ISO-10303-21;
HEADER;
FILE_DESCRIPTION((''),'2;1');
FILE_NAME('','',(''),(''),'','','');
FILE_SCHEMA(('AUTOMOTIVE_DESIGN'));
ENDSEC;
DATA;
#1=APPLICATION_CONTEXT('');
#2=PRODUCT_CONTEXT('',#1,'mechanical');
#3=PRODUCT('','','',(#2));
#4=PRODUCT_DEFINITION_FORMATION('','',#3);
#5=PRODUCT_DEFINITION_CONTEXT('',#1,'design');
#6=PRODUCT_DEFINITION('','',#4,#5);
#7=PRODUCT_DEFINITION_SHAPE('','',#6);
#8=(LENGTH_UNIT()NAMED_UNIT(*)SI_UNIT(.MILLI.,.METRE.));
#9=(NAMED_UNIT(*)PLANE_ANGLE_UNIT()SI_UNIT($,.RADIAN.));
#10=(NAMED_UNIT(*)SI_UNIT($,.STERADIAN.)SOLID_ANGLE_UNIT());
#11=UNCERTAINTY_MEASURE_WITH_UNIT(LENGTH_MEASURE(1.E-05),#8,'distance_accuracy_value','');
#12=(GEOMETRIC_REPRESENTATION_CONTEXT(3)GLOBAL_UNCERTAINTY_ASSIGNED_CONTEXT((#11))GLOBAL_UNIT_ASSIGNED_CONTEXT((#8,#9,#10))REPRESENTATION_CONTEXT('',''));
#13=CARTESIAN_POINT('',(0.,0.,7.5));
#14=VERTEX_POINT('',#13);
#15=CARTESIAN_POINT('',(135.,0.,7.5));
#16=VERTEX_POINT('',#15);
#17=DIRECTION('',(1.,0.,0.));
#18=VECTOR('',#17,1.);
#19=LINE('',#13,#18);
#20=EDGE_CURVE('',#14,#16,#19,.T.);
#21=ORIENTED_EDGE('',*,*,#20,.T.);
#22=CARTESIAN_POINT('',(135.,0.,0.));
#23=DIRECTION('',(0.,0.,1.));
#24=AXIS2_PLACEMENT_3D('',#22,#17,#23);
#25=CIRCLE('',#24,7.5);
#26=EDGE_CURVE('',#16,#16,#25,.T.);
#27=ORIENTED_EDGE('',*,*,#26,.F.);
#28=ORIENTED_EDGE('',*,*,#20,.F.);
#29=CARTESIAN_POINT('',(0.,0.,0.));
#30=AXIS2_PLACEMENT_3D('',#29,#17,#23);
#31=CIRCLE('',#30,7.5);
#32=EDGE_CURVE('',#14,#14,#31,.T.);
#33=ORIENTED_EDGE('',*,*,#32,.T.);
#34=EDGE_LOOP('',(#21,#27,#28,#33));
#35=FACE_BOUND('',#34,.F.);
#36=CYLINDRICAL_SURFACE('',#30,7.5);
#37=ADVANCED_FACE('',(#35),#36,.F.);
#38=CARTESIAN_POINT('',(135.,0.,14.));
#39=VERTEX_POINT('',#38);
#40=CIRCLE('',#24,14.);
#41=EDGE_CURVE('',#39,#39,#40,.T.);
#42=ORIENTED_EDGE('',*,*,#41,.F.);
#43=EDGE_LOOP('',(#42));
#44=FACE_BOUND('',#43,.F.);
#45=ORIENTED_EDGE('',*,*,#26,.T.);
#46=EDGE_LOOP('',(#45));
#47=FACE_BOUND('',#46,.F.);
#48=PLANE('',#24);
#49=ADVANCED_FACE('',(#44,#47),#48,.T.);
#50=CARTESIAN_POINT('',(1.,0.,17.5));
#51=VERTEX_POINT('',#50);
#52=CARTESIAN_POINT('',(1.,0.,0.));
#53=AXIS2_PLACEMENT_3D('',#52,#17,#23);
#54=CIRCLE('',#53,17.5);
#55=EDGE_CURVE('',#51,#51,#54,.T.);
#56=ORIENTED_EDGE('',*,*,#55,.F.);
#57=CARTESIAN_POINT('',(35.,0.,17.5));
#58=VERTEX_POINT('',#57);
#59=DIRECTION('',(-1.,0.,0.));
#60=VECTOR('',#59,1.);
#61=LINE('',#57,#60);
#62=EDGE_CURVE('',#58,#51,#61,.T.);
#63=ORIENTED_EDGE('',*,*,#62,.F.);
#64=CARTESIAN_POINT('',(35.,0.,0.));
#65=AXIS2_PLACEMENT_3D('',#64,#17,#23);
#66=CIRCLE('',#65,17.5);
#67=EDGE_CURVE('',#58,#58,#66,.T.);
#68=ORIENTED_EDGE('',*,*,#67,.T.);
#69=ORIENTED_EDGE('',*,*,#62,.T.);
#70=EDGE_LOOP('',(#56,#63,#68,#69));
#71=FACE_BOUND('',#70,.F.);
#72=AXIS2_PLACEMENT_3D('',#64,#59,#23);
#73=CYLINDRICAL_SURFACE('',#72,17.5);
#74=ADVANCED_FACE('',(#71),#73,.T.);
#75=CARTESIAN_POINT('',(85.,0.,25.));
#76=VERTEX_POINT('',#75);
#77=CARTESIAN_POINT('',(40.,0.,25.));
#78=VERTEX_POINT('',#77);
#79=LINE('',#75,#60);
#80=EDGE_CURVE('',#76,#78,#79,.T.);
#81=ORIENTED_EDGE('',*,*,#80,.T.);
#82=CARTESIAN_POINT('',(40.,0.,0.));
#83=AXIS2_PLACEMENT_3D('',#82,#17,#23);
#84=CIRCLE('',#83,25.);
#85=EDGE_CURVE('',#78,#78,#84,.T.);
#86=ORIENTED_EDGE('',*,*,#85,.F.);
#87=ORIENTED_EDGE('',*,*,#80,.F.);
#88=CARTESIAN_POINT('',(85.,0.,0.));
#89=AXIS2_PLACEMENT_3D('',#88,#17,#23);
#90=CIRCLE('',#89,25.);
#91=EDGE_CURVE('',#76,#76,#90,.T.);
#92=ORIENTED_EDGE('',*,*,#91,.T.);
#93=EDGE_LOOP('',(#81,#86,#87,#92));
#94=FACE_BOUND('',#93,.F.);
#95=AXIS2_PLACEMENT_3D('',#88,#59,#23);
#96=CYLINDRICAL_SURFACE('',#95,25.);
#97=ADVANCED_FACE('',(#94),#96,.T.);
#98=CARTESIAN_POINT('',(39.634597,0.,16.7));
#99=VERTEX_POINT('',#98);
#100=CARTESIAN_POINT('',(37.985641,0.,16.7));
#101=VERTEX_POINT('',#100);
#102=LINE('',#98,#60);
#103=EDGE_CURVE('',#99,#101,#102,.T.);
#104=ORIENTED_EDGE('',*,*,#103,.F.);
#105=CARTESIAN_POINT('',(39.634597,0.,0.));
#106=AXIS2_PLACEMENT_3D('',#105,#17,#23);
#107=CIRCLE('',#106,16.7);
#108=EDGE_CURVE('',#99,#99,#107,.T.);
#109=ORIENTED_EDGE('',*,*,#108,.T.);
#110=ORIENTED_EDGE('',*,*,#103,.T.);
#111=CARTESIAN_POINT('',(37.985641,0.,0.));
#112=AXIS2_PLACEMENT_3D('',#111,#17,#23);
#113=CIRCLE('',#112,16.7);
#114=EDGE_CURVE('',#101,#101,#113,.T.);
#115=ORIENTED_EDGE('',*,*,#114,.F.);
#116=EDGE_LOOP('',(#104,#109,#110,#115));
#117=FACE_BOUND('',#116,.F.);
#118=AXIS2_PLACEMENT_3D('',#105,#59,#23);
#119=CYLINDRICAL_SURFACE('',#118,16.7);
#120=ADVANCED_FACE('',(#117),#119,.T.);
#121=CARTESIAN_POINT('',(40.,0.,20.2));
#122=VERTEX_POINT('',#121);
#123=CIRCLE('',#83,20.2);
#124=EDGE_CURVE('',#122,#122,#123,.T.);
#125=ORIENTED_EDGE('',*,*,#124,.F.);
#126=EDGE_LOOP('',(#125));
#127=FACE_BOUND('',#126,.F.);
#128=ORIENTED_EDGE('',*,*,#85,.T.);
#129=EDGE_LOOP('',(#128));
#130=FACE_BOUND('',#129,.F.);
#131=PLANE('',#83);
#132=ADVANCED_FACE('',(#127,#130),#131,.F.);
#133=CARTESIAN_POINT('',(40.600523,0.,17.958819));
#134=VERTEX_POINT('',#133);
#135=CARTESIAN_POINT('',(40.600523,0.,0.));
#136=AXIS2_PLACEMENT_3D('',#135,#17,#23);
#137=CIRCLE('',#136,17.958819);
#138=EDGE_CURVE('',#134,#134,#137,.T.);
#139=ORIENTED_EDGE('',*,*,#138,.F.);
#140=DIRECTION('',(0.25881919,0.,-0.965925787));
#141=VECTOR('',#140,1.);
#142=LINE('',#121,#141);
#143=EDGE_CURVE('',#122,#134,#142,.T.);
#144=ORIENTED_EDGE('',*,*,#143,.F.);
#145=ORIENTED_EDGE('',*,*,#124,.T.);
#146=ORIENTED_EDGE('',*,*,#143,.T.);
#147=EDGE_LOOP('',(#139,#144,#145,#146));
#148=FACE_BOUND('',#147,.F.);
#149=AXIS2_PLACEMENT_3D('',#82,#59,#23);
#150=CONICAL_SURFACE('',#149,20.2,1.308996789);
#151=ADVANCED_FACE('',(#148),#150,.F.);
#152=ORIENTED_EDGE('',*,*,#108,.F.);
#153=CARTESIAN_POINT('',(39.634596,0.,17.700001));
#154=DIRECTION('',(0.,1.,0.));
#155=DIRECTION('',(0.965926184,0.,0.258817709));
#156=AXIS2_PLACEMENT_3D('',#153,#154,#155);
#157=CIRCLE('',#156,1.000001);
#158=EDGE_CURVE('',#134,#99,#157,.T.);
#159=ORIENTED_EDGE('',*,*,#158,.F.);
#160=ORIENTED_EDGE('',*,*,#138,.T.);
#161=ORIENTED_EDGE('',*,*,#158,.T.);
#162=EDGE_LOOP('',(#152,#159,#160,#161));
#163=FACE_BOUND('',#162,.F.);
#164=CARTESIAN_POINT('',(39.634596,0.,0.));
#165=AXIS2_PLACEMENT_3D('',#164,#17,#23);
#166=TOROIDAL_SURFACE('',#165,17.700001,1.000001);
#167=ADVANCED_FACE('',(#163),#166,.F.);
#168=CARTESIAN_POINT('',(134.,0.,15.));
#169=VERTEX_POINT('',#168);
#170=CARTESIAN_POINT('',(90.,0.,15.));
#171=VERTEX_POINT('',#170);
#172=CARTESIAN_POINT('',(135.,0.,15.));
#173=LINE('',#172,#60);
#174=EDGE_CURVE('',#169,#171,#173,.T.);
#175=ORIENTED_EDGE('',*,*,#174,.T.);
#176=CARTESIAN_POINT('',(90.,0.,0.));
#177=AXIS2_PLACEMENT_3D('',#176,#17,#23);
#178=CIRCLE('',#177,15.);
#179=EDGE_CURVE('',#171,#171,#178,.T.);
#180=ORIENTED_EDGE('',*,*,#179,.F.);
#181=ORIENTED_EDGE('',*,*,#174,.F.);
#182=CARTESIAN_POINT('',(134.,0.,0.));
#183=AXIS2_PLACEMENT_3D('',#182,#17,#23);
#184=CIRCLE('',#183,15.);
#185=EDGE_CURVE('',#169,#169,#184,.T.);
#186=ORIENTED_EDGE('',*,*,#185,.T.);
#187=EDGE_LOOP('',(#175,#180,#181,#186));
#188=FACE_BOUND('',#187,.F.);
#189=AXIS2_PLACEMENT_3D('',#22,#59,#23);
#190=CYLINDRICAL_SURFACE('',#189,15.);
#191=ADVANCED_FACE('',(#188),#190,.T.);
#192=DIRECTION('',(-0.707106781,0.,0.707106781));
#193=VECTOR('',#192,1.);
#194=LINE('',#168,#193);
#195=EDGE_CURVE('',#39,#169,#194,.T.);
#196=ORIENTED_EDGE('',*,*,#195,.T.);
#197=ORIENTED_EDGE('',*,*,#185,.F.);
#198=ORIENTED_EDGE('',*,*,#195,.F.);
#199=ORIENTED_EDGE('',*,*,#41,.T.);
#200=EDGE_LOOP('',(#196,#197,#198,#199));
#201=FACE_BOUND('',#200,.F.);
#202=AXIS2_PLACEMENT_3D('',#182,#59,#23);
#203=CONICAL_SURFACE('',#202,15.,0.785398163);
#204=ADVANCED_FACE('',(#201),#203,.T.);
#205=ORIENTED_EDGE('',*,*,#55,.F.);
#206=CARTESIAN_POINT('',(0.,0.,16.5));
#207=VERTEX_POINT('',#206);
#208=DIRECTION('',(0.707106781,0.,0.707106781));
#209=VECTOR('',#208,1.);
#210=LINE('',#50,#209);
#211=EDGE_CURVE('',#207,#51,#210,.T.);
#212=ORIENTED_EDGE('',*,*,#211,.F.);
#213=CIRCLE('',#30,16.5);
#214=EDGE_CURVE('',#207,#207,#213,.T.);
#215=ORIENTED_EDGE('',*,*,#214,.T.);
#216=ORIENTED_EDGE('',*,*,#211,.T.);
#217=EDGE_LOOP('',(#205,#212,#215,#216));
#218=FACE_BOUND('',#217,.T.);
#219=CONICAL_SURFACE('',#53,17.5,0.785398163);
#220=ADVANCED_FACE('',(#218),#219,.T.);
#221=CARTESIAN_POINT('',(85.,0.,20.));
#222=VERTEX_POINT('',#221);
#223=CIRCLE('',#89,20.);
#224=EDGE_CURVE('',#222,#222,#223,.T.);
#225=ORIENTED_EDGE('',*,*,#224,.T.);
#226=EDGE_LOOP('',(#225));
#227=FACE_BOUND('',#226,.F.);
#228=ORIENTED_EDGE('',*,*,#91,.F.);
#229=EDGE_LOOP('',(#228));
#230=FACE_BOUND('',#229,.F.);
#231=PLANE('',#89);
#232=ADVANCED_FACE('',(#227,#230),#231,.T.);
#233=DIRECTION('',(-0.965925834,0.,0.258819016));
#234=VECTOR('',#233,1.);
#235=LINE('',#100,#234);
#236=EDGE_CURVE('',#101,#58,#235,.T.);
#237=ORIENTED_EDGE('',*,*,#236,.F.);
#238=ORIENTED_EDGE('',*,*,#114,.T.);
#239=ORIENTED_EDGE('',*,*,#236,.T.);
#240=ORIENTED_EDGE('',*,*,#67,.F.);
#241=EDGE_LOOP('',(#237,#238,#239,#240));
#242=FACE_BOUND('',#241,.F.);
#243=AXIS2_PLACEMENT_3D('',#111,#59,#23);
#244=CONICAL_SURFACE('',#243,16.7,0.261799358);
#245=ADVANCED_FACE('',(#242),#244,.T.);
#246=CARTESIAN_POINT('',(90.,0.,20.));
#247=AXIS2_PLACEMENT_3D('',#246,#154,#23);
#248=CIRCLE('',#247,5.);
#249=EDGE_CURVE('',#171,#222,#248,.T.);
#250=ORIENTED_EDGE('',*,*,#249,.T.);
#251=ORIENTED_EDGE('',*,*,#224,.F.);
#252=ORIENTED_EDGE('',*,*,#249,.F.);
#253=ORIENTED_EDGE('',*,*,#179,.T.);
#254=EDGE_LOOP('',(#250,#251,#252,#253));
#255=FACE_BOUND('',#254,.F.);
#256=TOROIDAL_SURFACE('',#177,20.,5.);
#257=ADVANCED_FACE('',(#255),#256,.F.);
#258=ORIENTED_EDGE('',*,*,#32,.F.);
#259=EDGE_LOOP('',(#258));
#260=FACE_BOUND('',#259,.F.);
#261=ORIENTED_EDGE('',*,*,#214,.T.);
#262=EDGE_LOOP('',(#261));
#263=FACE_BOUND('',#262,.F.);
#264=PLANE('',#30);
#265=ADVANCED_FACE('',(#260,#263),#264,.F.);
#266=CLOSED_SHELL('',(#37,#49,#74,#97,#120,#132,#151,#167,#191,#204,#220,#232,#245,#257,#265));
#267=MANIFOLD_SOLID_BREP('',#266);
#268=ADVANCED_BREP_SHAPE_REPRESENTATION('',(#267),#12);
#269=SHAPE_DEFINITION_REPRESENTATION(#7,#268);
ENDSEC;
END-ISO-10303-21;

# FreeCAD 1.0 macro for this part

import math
import FreeCAD as App
import Part
import Sketcher
Q = App.Units.Quantity


def edges_at(feature, points):
    """Names of the edges that pass closest to the given points."""
    edges = feature.Shape.Edges
    near = lambda p: min(range(len(edges)), key=lambda i: edges[i].distToShape(Part.Vertex(*p))[0])
    return sorted({f"Edge{near(p) + 1}" for p in points})

doc = App.newDocument("Part")
body = doc.addObject("PartDesign::Body", "Body")

# Sketch on XZ plane
sketch1 = body.newObject("Sketcher::SketchObject", "Sketch")
sketch1.AttachmentSupport = (doc.getObject("XZ_Plane"), [""])
sketch1.MapMode = "FlatFace"
sketch1.addGeometry(Part.LineSegment(App.Vector(0, 17.5, 0), App.Vector(0, 7.5, 0)), False)
sketch1.addGeometry(Part.LineSegment(App.Vector(0, 7.5, 0), App.Vector(135, 7.5, 0)), False)
sketch1.addGeometry(Part.LineSegment(App.Vector(135, 7.5, 0), App.Vector(135, 15, 0)), False)
sketch1.addGeometry(Part.LineSegment(App.Vector(135, 15, 0), App.Vector(85, 15, 0)), False)
sketch1.addGeometry(Part.LineSegment(App.Vector(85, 15, 0), App.Vector(85, 25, 0)), False)
sketch1.addGeometry(Part.LineSegment(App.Vector(85, 25, 0), App.Vector(40, 25, 0)), False)
sketch1.addGeometry(Part.LineSegment(App.Vector(40, 25, 0), App.Vector(40, 20.2, 0)), False)
sketch1.addGeometry(Part.LineSegment(App.Vector(40, 20.2, 0), App.Vector(40.6, 18, 0)), False)
sketch1.addGeometry(Part.ArcOfCircle(Part.Circle(App.Vector(39.6, 17.7, 0), App.Vector(0, 0, 1), 1), math.radians(-90), math.radians(15)), False)
sketch1.addGeometry(Part.LineSegment(App.Vector(39.6, 16.7, 0), App.Vector(38, 16.7, 0)), False)
sketch1.addGeometry(Part.LineSegment(App.Vector(38, 16.7, 0), App.Vector(35, 17.5, 0)), False)
sketch1.addGeometry(Part.LineSegment(App.Vector(35, 17.5, 0), App.Vector(0, 17.5, 0)), False)
sketch1.addConstraint(Sketcher.Constraint("Coincident", 0, 2, 1, 1))
sketch1.addConstraint(Sketcher.Constraint("Coincident", 1, 2, 2, 1))
sketch1.addConstraint(Sketcher.Constraint("Coincident", 2, 2, 3, 1))
sketch1.addConstraint(Sketcher.Constraint("Coincident", 3, 2, 4, 1))
sketch1.addConstraint(Sketcher.Constraint("Coincident", 4, 2, 5, 1))
sketch1.addConstraint(Sketcher.Constraint("Coincident", 5, 2, 6, 1))
sketch1.addConstraint(Sketcher.Constraint("Coincident", 6, 2, 7, 1))
sketch1.addConstraint(Sketcher.Constraint("Tangent", 7, 2, 8, 2))
sketch1.addConstraint(Sketcher.Constraint("Tangent", 8, 1, 9, 1))
sketch1.addConstraint(Sketcher.Constraint("Coincident", 9, 2, 10, 1))
sketch1.addConstraint(Sketcher.Constraint("Coincident", 10, 2, 11, 1))
sketch1.addConstraint(Sketcher.Constraint("Coincident", 11, 2, 0, 1))
sketch1.addConstraint(Sketcher.Constraint("Vertical", 0))
sketch1.addConstraint(Sketcher.Constraint("Horizontal", 1))
sketch1.addConstraint(Sketcher.Constraint("Vertical", 2))
sketch1.addConstraint(Sketcher.Constraint("Horizontal", 3))
sketch1.addConstraint(Sketcher.Constraint("Vertical", 4))
sketch1.addConstraint(Sketcher.Constraint("Horizontal", 5))
sketch1.addConstraint(Sketcher.Constraint("Vertical", 6))
sketch1.addConstraint(Sketcher.Constraint("Horizontal", 9))
sketch1.addConstraint(Sketcher.Constraint("Horizontal", 11))
sketch1.addConstraint(Sketcher.Constraint("PointOnObject", 0, 2, -2))
sketch1.addConstraint(Sketcher.Constraint("Equal", 0, 4))
sketch1.addConstraint(Sketcher.Constraint("Radius", 8, Q("1.000001 mm")))
sketch1.addConstraint(Sketcher.Constraint("DistanceX", 1, 1, 1, 2, Q("135 mm")))
sketch1.addConstraint(Sketcher.Constraint("DistanceX", 3, 2, 3, 1, Q("50 mm")))
sketch1.addConstraint(Sketcher.Constraint("DistanceX", 5, 2, 5, 1, Q("45 mm")))
sketch1.addConstraint(Sketcher.Constraint("DistanceX", 11, 2, 11, 1, Q("35 mm")))
sketch1.addConstraint(Sketcher.Constraint("DistanceY", 0, 2, 0, 1, Q("10 mm")))
sketch1.addConstraint(Sketcher.Constraint("Angle", 7, Q("-74.999991 deg")))
sketch1.addConstraint(Sketcher.Constraint("Angle", 10, Q("165.000002 deg")))
sketch1.addConstraint(Sketcher.Constraint("DistanceY", 2, 1, 2, 2, Q("7.5 mm")))
sketch1.addConstraint(Sketcher.Constraint("DistanceY", 6, 2, 6, 1, Q("4.8 mm")))
sketch1.addConstraint(Sketcher.Constraint("DistanceY", -1, 1, 2, 2, Q("15 mm")))
sketch1.addConstraint(Sketcher.Constraint("DistanceY", -1, 1, 8, 3, Q("17.700001 mm")))
revolution = body.newObject("PartDesign::Revolution", "Revolution")
revolution.Profile = sketch1
revolution.ReferenceAxis = (sketch1, ["H_Axis"])
revolution.Angle = 360
doc.recompute()

chamfer = body.newObject("PartDesign::Chamfer", "Chamfer")
chamfer.Base = (revolution, edges_at(revolution, [(0, 0, -17.5), (135, 0, -15)]))
chamfer.Size = 1
doc.recompute()

fillet = body.newObject("PartDesign::Fillet", "Fillet")
fillet.Base = (chamfer, edges_at(chamfer, [(85, 0, -15)]))
fillet.Radius = 5

doc.recompute()
